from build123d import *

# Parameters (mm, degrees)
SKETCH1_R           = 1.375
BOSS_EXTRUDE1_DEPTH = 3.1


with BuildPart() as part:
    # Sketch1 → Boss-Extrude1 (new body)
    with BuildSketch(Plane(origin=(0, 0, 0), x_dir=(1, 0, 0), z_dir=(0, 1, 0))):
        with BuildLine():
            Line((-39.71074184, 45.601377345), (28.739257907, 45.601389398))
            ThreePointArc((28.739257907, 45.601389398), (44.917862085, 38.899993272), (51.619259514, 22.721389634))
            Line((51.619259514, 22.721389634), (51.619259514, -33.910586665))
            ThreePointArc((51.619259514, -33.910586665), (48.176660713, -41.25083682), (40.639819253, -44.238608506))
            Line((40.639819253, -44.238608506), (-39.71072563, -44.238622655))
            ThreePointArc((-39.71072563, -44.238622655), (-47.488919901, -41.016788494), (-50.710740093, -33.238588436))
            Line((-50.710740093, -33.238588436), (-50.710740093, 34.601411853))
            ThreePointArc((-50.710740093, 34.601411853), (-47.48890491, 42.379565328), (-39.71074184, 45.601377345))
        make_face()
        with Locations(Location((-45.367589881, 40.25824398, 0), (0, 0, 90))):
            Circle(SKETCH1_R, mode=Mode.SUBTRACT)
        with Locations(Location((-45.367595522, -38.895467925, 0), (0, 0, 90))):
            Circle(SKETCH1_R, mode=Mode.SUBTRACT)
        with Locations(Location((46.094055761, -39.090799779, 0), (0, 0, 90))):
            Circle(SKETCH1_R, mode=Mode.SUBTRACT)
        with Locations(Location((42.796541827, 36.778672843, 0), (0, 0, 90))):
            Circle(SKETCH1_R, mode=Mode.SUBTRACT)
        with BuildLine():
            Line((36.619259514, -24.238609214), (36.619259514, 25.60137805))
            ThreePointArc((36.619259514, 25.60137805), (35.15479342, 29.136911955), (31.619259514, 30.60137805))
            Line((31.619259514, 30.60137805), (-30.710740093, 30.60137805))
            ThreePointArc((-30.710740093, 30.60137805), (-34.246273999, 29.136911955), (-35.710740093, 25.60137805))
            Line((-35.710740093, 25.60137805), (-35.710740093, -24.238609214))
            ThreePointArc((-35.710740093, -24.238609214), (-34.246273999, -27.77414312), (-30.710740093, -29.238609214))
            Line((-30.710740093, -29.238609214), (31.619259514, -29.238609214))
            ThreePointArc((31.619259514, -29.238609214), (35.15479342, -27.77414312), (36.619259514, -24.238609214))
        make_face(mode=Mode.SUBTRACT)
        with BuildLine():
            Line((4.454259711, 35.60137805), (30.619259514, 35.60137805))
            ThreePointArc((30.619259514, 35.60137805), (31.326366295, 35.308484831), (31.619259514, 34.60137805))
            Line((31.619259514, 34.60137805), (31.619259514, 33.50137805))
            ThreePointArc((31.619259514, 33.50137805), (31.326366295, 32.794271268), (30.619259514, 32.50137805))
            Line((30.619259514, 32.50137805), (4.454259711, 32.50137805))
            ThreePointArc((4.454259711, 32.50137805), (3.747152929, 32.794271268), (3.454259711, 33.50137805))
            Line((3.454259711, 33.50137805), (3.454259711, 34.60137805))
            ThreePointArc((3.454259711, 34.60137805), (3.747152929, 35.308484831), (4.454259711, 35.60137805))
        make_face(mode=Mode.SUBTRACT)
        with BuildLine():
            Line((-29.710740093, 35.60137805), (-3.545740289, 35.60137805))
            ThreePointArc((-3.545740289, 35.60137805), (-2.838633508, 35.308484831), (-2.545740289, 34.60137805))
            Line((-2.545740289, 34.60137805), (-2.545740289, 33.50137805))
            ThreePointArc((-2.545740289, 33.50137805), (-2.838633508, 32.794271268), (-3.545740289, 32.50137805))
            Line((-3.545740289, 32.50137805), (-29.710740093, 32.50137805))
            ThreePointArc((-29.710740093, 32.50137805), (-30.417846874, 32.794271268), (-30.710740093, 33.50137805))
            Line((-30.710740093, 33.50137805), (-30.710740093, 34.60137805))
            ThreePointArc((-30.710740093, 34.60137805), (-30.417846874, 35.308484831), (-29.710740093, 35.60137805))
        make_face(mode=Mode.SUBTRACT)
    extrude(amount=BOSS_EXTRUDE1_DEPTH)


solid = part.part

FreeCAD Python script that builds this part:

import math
import FreeCAD as App
import Part
import Sketcher

V = App.Vector
Q = App.Units.Quantity

doc = App.newDocument("Part")
body = doc.addObject("PartDesign::Body", "Body")

sketch1 = body.newObject("Sketcher::SketchObject", "Sketch")
sketch1.AttachmentSupport = (doc.getObject("XZ_Plane"), [""])
sketch1.MapMode = "FlatFace"
sketch1.addGeometry([
    Part.LineSegment(V(28.739258, -45.601389, 0), V(-39.710742, -45.601377, 0)),
    Part.ArcOfCircle(Part.Circle(V(-39.710746, -34.601384, 0), V(0, 0, 1), 10.999994), math.radians(-179.999852), math.radians(-89.999977)),
    Part.LineSegment(V(-50.71074, -34.601412, 0), V(-50.71074, 33.238588, 0)),
    Part.ArcOfCircle(Part.Circle(V(-39.710734, 33.238617, 0), V(0, 0, 1), 11.000006), math.radians(89.999956), math.radians(180.000147)),
    Part.LineSegment(V(-39.710726, 44.238623, 0), V(40.639819, 44.238609, 0)),
    Part.ArcOfCircle(Part.Circle(V(40.639805, 33.23861, 0), V(0, 0, 1), 10.999998), math.radians(3.50231), math.radians(89.999928)),
    Part.LineSegment(V(51.61926, 33.910587, 0), V(51.61926, -22.72139, 0)),
    Part.ArcOfCircle(Part.Circle(V(28.73926, -22.72139, 0), V(0, 0, 1), 22.88), math.radians(-90.000005), math.radians(0)),
    Part.Circle(V(46.094056, 39.0908, 0), V(0, 0, 1), 1.375),
    Part.Circle(V(-45.367596, 38.895468, 0), V(0, 0, 1), 1.375),
    Part.ArcOfCircle(Part.Circle(V(31.61926, 24.238609, 0), V(0, 0, 1), 5), math.radians(0), math.radians(90)),
    Part.LineSegment(V(31.61926, 29.238609, 0), V(-30.71074, 29.238609, 0)),
    Part.ArcOfCircle(Part.Circle(V(-30.71074, 24.238609, 0), V(0, 0, 1), 5), math.radians(90), math.radians(180)),
    Part.LineSegment(V(-35.71074, 24.238609, 0), V(-35.71074, -25.601378, 0)),
    Part.ArcOfCircle(Part.Circle(V(-30.71074, -25.601378, 0), V(0, 0, 1), 5), math.radians(-180), math.radians(-90)),
    Part.LineSegment(V(-30.71074, -30.601378, 0), V(31.61926, -30.601378, 0)),
    Part.ArcOfCircle(Part.Circle(V(31.61926, -25.601378, 0), V(0, 0, 1), 5), math.radians(-90), math.radians(0)),
    Part.LineSegment(V(36.61926, -25.601378, 0), V(36.61926, 24.238609, 0)),
    Part.Circle(V(42.796542, -36.778673, 0), V(0, 0, 1), 1.375),
    Part.LineSegment(V(4.45426, -35.601378, 0), V(30.61926, -35.601378, 0)),
    Part.ArcOfCircle(Part.Circle(V(30.61926, -34.601378, 0), V(0, 0, 1), 1), math.radians(-90), math.radians(0)),
    Part.LineSegment(V(31.61926, -34.601378, 0), V(31.61926, -33.501378, 0)),
    Part.ArcOfCircle(Part.Circle(V(30.61926, -33.501378, 0), V(0, 0, 1), 1), math.radians(0), math.radians(90)),
    Part.LineSegment(V(30.61926, -32.501378, 0), V(4.45426, -32.501378, 0)),
    Part.ArcOfCircle(Part.Circle(V(4.45426, -33.501378, 0), V(0, 0, 1), 1), math.radians(90), math.radians(180)),
    Part.LineSegment(V(3.45426, -33.501378, 0), V(3.45426, -34.601378, 0)),
    Part.ArcOfCircle(Part.Circle(V(4.45426, -34.601378, 0), V(0, 0, 1), 1), math.radians(180), math.radians(270)),
    Part.LineSegment(V(-29.71074, -35.601378, 0), V(-3.54574, -35.601378, 0)),
    Part.ArcOfCircle(Part.Circle(V(-3.54574, -34.601378, 0), V(0, 0, 1), 1), math.radians(-90), math.radians(0)),
    Part.LineSegment(V(-2.54574, -34.601378, 0), V(-2.54574, -33.501378, 0)),
    Part.ArcOfCircle(Part.Circle(V(-3.54574, -33.501378, 0), V(0, 0, 1), 1), math.radians(0), math.radians(90)),
    Part.LineSegment(V(-3.54574, -32.501378, 0), V(-29.71074, -32.501378, 0)),
    Part.ArcOfCircle(Part.Circle(V(-29.71074, -33.501378, 0), V(0, 0, 1), 1), math.radians(90), math.radians(180)),
    Part.LineSegment(V(-30.71074, -33.501378, 0), V(-30.71074, -34.601378, 0)),
    Part.ArcOfCircle(Part.Circle(V(-29.71074, -34.601378, 0), V(0, 0, 1), 1), math.radians(-180), math.radians(-90)),
    Part.Circle(V(-45.36759, -40.258244, 0), V(0, 0, 1), 1.375),
], False)
sketch1.addConstraint([
    Sketcher.Constraint("Tangent", 0, 2, 1, 2),
    Sketcher.Constraint("Coincident", 1, 1, 2, 1),
    Sketcher.Constraint("Coincident", 2, 2, 3, 2),
    Sketcher.Constraint("Tangent", 3, 1, 4, 1),
    Sketcher.Constraint("Tangent", 4, 2, 5, 2),
    Sketcher.Constraint("Coincident", 5, 1, 6, 1),
    Sketcher.Constraint("Tangent", 6, 2, 7, 2),
    Sketcher.Constraint("Tangent", 7, 1, 0, 1),
    Sketcher.Constraint("Tangent", 10, 2, 11, 1),
    Sketcher.Constraint("Tangent", 11, 2, 12, 1),
    Sketcher.Constraint("Tangent", 12, 2, 13, 1),
    Sketcher.Constraint("Tangent", 13, 2, 14, 1),
    Sketcher.Constraint("Tangent", 14, 2, 15, 1),
    Sketcher.Constraint("Tangent", 15, 2, 16, 1),
    Sketcher.Constraint("Tangent", 16, 2, 17, 1),
    Sketcher.Constraint("Tangent", 17, 2, 10, 1),
    Sketcher.Constraint("Tangent", 19, 2, 20, 1),
    Sketcher.Constraint("Tangent", 20, 2, 21, 1),
    Sketcher.Constraint("Tangent", 21, 2, 22, 1),
    Sketcher.Constraint("Tangent", 22, 2, 23, 1),
    Sketcher.Constraint("Tangent", 23, 2, 24, 1),
    Sketcher.Constraint("Tangent", 24, 2, 25, 1),
    Sketcher.Constraint("Tangent", 25, 2, 26, 1),
    Sketcher.Constraint("Tangent", 26, 2, 19, 1),
    Sketcher.Constraint("Tangent", 27, 2, 28, 1),
    Sketcher.Constraint("Tangent", 28, 2, 29, 1),
    Sketcher.Constraint("Tangent", 29, 2, 30, 1),
    Sketcher.Constraint("Tangent", 30, 2, 31, 1),
    Sketcher.Constraint("Tangent", 31, 2, 32, 1),
    Sketcher.Constraint("Tangent", 32, 2, 33, 1),
    Sketcher.Constraint("Tangent", 33, 2, 34, 1),
    Sketcher.Constraint("Tangent", 34, 2, 27, 1),
    Sketcher.Constraint("Vertical", 2),
    Sketcher.Constraint("Vertical", 6),
    Sketcher.Constraint("Horizontal", 11),
    Sketcher.Constraint("Vertical", 13),
    Sketcher.Constraint("Horizontal", 15),
    Sketcher.Constraint("Vertical", 17),
    Sketcher.Constraint("Horizontal", 19),
    Sketcher.Constraint("Vertical", 21),
    Sketcher.Constraint("Horizontal", 23),
    Sketcher.Constraint("Vertical", 25),
    Sketcher.Constraint("Horizontal", 27),
    Sketcher.Constraint("Vertical", 29),
    Sketcher.Constraint("Horizontal", 31),
    Sketcher.Constraint("Vertical", 33),
    Sketcher.Constraint("Equal", 8, 9),
    Sketcher.Constraint("Equal", 10, 12),
    Sketcher.Constraint("Equal", 12, 14),
    Sketcher.Constraint("Equal", 14, 16),
    Sketcher.Constraint("Equal", 9, 18),
    Sketcher.Constraint("Equal", 20, 22),
    Sketcher.Constraint("Equal", 22, 24),
    Sketcher.Constraint("Equal", 24, 26),
    Sketcher.Constraint("Equal", 26, 28),
    Sketcher.Constraint("Equal", 28, 30),
    Sketcher.Constraint("Equal", 30, 32),
    Sketcher.Constraint("Equal", 32, 34),
    Sketcher.Constraint("Equal", 18, 35),
    Sketcher.Constraint("Parallel", 0, 4),
    Sketcher.Constraint("Horizontal", 26, 3, 28, 3),
    Sketcher.Constraint("Horizontal", 24, 3, 30, 3),
    Sketcher.Constraint("Vertical", 15, 2, 20, 2),
    Sketcher.Constraint("Vertical", 14, 2, 32, 2),
    Sketcher.Constraint("Equal", 23, 27),
    Sketcher.Constraint("Radius", 5, 10.999998),
    Sketcher.Constraint("Radius", 10, 5.0),
    Sketcher.Constraint("Radius", 20, 1.0),
    Sketcher.Constraint("Diameter", 8, 2.75),
    Sketcher.Constraint("Angle", 0, Q("179.99999 deg")),
    Sketcher.Constraint("Radius", 7, 22.88),
    Sketcher.Constraint("DistanceY", 21, 1, 21, 2, 1.1),
    Sketcher.Constraint("DistanceY", 10, 3, 5, 3, 9.000001),
    Sketcher.Constraint("DistanceY", 20, 3, 16, 3, 9.0),
    Sketcher.Constraint("DistanceX", 28, 3, 26, 3, 8.0),
    Sketcher.Constraint("DistanceX", 0, 2, 34, 3, 10.000002),
    Sketcher.Constraint("DistanceY", 0, 2, 34, 3, 10.999999),
    Sketcher.Constraint("DistanceX", 1, 1, 0, 2, 10.999998),
    Sketcher.Constraint("DistanceX", 10, 3, 5, 1, 20.0),
    Sketcher.Constraint("DistanceX", 11, 2, 11, 1, 62.33),
    Sketcher.Constraint("DistanceY", 2, 1, 2, 2, 67.84),
    Sketcher.Constraint("DistanceY", 1, 3, 3, 3, 67.84),
    Sketcher.Constraint("DistanceY", 7, 3, 5, 3, 55.96),
    Sketcher.Constraint("DistanceY", -1, 1, 8, 3, 39.0908),
    Sketcher.Constraint("DistanceX", 9, 3, 5, 3, 86.007401),
    Sketcher.Constraint("DistanceY", 6, 2, 6, 1, 56.631976),
    Sketcher.Constraint("DistanceY", -1, 1, 5, 3, 33.23861),
    Sketcher.Constraint("DistanceX", -1, 1, 7, 3, 28.73926),
    Sketcher.Constraint("DistanceX", -1, 1, 18, 3, 42.796542),
    Sketcher.Constraint("DistanceX", 35, 3, -1, 1, 45.36759),
    Sketcher.Constraint("DistanceY", 1, 1, -1, 1, 34.601412),
    Sketcher.Constraint("DistanceX", 5, 3, 8, 3, 5.45425),
    Sketcher.Constraint("DistanceY", 3, 3, 9, 3, 5.656851),
    Sketcher.Constraint("DistanceY", 35, 3, 1, 3, 5.65686),
    Sketcher.Constraint("DistanceY", 18, 3, -1, 1, 36.778673),
])
pad1 = body.newObject("PartDesign::Pad", "Pad")
pad1.Profile = sketch1
pad1.Length = 3.1
pad1.Reversed = True

doc.recompute()
